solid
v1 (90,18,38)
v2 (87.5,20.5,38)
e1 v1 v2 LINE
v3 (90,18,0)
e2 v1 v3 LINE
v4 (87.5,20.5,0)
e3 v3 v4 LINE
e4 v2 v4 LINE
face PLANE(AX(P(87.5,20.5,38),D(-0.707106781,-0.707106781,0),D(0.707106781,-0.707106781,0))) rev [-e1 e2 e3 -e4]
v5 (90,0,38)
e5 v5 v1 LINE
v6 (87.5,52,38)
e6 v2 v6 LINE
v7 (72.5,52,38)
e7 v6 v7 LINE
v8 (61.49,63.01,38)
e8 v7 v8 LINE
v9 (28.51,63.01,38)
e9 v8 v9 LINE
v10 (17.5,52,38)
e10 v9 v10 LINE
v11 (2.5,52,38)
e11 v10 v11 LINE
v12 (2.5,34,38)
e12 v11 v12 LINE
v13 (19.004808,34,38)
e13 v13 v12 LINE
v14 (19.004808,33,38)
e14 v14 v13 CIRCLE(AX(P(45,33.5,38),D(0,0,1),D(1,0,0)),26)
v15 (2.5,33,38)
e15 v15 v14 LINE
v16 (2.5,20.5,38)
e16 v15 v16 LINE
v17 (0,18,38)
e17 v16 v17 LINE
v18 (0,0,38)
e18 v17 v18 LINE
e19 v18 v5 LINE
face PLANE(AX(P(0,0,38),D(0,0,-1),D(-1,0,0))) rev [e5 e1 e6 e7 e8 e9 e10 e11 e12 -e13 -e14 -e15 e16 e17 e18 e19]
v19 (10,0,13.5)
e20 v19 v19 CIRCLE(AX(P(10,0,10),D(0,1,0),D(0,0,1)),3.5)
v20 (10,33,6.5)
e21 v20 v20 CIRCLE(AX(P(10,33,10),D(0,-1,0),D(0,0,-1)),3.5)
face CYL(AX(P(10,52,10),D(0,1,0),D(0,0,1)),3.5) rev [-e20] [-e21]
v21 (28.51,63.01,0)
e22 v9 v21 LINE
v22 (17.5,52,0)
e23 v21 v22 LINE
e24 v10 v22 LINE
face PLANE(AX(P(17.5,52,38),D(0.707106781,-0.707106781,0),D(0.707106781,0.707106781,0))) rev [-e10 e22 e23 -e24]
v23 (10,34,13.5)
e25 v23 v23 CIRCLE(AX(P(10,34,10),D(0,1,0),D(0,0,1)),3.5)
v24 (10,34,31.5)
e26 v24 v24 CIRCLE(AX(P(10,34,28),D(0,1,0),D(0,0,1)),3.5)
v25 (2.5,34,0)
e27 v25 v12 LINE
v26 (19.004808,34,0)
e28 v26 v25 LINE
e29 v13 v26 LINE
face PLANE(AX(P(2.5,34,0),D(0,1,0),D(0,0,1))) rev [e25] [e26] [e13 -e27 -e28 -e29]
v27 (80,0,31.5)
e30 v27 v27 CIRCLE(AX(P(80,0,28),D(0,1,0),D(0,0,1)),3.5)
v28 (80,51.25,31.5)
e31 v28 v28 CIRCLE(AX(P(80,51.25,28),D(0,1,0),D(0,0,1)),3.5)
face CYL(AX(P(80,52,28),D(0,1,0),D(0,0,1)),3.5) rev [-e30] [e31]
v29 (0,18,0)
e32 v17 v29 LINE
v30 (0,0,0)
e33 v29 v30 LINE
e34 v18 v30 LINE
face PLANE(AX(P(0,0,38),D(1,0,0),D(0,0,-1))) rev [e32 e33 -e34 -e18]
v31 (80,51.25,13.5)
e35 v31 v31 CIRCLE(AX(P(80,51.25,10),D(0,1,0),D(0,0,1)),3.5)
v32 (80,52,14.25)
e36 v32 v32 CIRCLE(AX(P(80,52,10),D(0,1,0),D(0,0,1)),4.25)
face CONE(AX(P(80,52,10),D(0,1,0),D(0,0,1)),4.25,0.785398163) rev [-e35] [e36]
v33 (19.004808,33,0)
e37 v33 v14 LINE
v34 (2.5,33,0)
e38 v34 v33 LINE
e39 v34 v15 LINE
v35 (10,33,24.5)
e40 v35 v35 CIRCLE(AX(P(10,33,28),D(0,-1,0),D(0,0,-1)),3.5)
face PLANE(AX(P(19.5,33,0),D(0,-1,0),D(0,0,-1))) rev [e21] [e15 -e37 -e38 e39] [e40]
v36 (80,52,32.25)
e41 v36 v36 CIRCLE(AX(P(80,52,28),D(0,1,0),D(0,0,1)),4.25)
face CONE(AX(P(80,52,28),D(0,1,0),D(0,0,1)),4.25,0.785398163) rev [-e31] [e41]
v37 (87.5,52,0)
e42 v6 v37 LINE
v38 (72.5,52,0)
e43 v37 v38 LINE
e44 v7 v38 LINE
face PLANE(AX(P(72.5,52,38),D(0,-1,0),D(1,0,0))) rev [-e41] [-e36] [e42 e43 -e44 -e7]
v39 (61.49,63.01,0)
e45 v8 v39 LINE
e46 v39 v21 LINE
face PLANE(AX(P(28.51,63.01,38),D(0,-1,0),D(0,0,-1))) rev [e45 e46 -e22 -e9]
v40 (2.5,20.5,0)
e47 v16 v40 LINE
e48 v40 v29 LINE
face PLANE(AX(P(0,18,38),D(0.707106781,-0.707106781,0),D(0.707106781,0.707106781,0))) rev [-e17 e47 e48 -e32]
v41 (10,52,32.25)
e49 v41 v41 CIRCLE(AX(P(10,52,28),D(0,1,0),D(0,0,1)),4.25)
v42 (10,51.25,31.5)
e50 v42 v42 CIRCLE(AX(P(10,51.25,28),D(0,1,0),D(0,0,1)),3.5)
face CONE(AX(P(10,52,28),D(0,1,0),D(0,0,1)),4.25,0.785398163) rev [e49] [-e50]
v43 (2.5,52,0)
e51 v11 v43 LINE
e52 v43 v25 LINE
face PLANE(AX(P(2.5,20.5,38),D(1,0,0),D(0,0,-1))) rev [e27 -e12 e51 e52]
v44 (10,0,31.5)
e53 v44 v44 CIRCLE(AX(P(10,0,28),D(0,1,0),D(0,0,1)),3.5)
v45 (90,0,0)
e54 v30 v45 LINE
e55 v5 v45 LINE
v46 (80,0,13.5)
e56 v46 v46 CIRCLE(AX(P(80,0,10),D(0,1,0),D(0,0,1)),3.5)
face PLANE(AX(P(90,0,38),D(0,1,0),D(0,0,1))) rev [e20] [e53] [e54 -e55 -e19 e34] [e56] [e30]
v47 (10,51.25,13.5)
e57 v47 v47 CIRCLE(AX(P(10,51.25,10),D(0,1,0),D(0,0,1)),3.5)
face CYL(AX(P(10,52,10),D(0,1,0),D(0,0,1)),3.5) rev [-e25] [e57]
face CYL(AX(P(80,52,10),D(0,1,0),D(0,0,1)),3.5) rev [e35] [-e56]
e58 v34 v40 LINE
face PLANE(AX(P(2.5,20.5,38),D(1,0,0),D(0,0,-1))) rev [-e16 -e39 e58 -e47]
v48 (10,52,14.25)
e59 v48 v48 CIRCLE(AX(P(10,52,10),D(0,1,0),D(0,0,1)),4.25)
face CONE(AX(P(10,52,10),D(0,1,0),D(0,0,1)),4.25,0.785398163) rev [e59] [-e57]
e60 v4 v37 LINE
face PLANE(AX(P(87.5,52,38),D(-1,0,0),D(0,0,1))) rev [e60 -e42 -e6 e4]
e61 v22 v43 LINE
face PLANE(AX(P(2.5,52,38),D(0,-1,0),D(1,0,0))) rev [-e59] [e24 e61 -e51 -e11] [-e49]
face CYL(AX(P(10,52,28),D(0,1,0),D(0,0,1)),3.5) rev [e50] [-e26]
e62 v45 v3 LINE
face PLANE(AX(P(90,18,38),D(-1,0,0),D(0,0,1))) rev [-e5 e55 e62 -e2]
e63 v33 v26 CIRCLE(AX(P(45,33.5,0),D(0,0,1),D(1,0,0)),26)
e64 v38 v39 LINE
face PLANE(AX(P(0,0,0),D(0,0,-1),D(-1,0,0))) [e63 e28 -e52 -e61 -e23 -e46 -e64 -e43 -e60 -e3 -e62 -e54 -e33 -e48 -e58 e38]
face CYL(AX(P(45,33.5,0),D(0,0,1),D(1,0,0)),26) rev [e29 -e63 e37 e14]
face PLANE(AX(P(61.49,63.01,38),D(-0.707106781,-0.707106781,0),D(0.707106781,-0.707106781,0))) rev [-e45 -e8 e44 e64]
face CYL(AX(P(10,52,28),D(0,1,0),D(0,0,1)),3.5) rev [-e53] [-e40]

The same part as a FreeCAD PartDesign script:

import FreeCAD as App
import Part
import Sketcher
from FreeCAD import Vector

doc = App.newDocument("Part")
params = doc.addObject("Spreadsheet::Sheet", "Params")
for row, (alias, value) in enumerate([
    ("sketch1_width", "90 mm"),
    ("sketch1_width2", "15 mm"),
    ("sketch1_height", "18 mm"),
    ("sketch1_height2", "31.5 mm"),
    ("sketch1_width3", "32.98 mm"),
    ("pad1_length", "38 mm"),
    ("sketch2_diameter", "52 mm"),
    ("pocket1_length", "38 mm"),
    ("sketch3_width", "17 mm"),
    ("sketch3_height", "1 mm"),
    ("pocket2_length", "38 mm"),
    ("sketch4_diameter", "7 mm"),
    ("hole_diameter", "7 mm"),
    ("hole_csink_diameter", "8.5 mm"),
], start=1):
    params.set(f"A{row}", alias)
    params.set(f"B{row}", "=" + value)
    params.setAlias(f"B{row}", alias)

body = doc.addObject("PartDesign::Body", "Body")

sketch1 = body.newObject("Sketcher::SketchObject", "Sketch")
sketch1.AttachmentSupport = (doc.getObject("XY_Plane"), [""])
sketch1.MapMode = "FlatFace"
sketch1.addGeometry([
    Part.LineSegment(Vector(0, 18, 0), Vector(0, 0, 0)),
    Part.LineSegment(Vector(0, 0, 0), Vector(90, 0, 0)),
    Part.LineSegment(Vector(90, 0, 0), Vector(90, 18, 0)),
    Part.LineSegment(Vector(90, 18, 0), Vector(87.5, 20.5, 0)),
    Part.LineSegment(Vector(87.5, 20.5, 0), Vector(87.5, 52, 0)),
    Part.LineSegment(Vector(87.5, 52, 0), Vector(72.5, 52, 0)),
    Part.LineSegment(Vector(72.5, 52, 0), Vector(61.5, 63, 0)),
    Part.LineSegment(Vector(61.5, 63, 0), Vector(28.5, 63, 0)),
    Part.LineSegment(Vector(28.5, 63, 0), Vector(17.5, 52, 0)),
    Part.LineSegment(Vector(17.5, 52, 0), Vector(2.5, 52, 0)),
    Part.LineSegment(Vector(2.5, 52, 0), Vector(2.5, 20.5, 0)),
    Part.LineSegment(Vector(2.5, 20.5, 0), Vector(0, 18, 0)),
], False)
sketch1.addConstraint([
    Sketcher.Constraint("Coincident", 0, 2, 1, 1),
    Sketcher.Constraint("Coincident", 1, 2, 2, 1),
    Sketcher.Constraint("Coincident", 2, 2, 3, 1),
    Sketcher.Constraint("Coincident", 3, 2, 4, 1),
    Sketcher.Constraint("Coincident", 4, 2, 5, 1),
    Sketcher.Constraint("Coincident", 5, 2, 6, 1),
    Sketcher.Constraint("Coincident", 6, 2, 7, 1),
    Sketcher.Constraint("Coincident", 7, 2, 8, 1),
    Sketcher.Constraint("Coincident", 8, 2, 9, 1),
    Sketcher.Constraint("Coincident", 9, 2, 10, 1),
    Sketcher.Constraint("Coincident", 10, 2, 11, 1),
    Sketcher.Constraint("Coincident", 11, 2, 0, 1),
    Sketcher.Constraint("Vertical", 0),
    Sketcher.Constraint("Horizontal", 1),
    Sketcher.Constraint("Vertical", 2),
    Sketcher.Constraint("Vertical", 4),
    Sketcher.Constraint("Horizontal", 5),
    Sketcher.Constraint("Horizontal", 7),
    Sketcher.Constraint("Horizontal", 9),
    Sketcher.Constraint("Vertical", 10),
    Sketcher.Constraint("Coincident", 0, 2, -1, 1),
    Sketcher.Constraint("Parallel", 3, 6),
    Sketcher.Constraint("Perpendicular", 6, 8),
    Sketcher.Constraint("Parallel", 8, 11),
    Sketcher.Constraint("Horizontal", 5, 2, 8, 2),
    Sketcher.Constraint("Horizontal", 3, 2, 10, 2),
    Sketcher.Constraint("Horizontal", 2, 2, 11, 2),
    Sketcher.Constraint("Equal", 5, 9),
    Sketcher.Constraint("Equal", 6, 8),
    Sketcher.Constraint("DistanceX", 1, 1, 1, 2, 90.0),
    Sketcher.Constraint("DistanceX", 5, 2, 5, 1, 15.0),
    Sketcher.Constraint("DistanceY", 0, 2, 0, 1, 18.0),
    Sketcher.Constraint("DistanceY", 4, 1, 4, 2, 31.5),
    Sketcher.Constraint("DistanceY", -1, 1, 4, 2, 52.0),
    Sketcher.Constraint("DistanceX", 7, 2, 7, 1, 32.98),
])
sketch1.setExpression("Constraints[29]", "Params.sketch1_width")
sketch1.setExpression("Constraints[30]", "Params.sketch1_width2")
sketch1.setExpression("Constraints[31]", "Params.sketch1_height")
sketch1.setExpression("Constraints[32]", "Params.sketch1_height2")
sketch1.setExpression("Constraints[34]", "Params.sketch1_width3")
pad1 = body.newObject("PartDesign::Pad", "Pad")
pad1.Profile = sketch1
pad1.setExpression("Length", "Params.pad1_length")

sketch2 = body.newObject("Sketcher::SketchObject", "Sketch001")
sketch2.AttachmentSupport = (doc.getObject("XY_Plane"), [""])
sketch2.MapMode = "FlatFace"
sketch2.AttachmentOffset = App.Placement(Vector(0, 0, 38), App.Rotation())
sketch2.addGeometry(Part.Circle(Vector(45, 34, 0), Vector(0, 0, 1), 26), False)
sketch2.addConstraint([
    Sketcher.Constraint("Diameter", 0, 52.0),
    Sketcher.Constraint("DistanceX", -1, 1, 0, 3, 45.0),
    Sketcher.Constraint("DistanceY", -1, 1, 0, 3, 33.5),
])
sketch2.setExpression("Constraints[0]", "Params.sketch2_diameter")
pocket1 = body.newObject("PartDesign::Pocket", "Pocket")
pocket1.Profile = sketch2
pocket1.setExpression("Length", "Params.pocket1_length")

sketch3 = body.newObject("Sketcher::SketchObject", "Sketch002")
sketch3.AttachmentSupport = (doc.getObject("XY_Plane"), [""])
sketch3.MapMode = "FlatFace"
sketch3.AttachmentOffset = App.Placement(Vector(0, 0, 38), App.Rotation())
sketch3.addGeometry([
    Part.LineSegment(Vector(2.5, 34, 0), Vector(2.5, 33, 0)),
    Part.LineSegment(Vector(2.5, 33, 0), Vector(19.5, 33, 0)),
    Part.LineSegment(Vector(19.5, 33, 0), Vector(19.5, 34, 0)),
    Part.LineSegment(Vector(19.5, 34, 0), Vector(2.5, 34, 0)),
], False)
sketch3.addConstraint([
    Sketcher.Constraint("Coincident", 0, 2, 1, 1),
    Sketcher.Constraint("Coincident", 1, 2, 2, 1),
    Sketcher.Constraint("Coincident", 2, 2, 3, 1),
    Sketcher.Constraint("Coincident", 3, 2, 0, 1),
    Sketcher.Constraint("Vertical", 0),
    Sketcher.Constraint("Horizontal", 1),
    Sketcher.Constraint("Vertical", 2),
    Sketcher.Constraint("Horizontal", 3),
    Sketcher.Constraint("DistanceX", 1, 1, 1, 2, 17.0),
    Sketcher.Constraint("DistanceY", 0, 2, 0, 1, 1.0),
    Sketcher.Constraint("DistanceY", -1, 1, 0, 2, 33.0),
    Sketcher.Constraint("DistanceX", -1, 1, 0, 2, 2.5),
])
sketch3.setExpression("Constraints[8]", "Params.sketch3_width")
sketch3.setExpression("Constraints[9]", "Params.sketch3_height")
pocket2 = body.newObject("PartDesign::Pocket", "Pocket001")
pocket2.Profile = sketch3
pocket2.setExpression("Length", "Params.pocket2_length")

sketch4 = body.newObject("Sketcher::SketchObject", "Sketch003")
sketch4.AttachmentSupport = (doc.getObject("XZ_Plane"), [""])
sketch4.MapMode = "FlatFace"
sketch4.AttachmentOffset = App.Placement(Vector(0, 0, -52), App.Rotation())
sketch4.addGeometry([
    Part.Circle(Vector(10, 10, 0), Vector(0, 0, 1), 3.5),
    Part.Circle(Vector(10, 28, 0), Vector(0, 0, 1), 3.5),
    Part.Circle(Vector(80, 28, 0), Vector(0, 0, 1), 3.5),
    Part.Circle(Vector(80, 10, 0), Vector(0, 0, 1), 3.5),
], False)
sketch4.addConstraint([
    Sketcher.Constraint("Equal", 0, 1),
    Sketcher.Constraint("Equal", 1, 2),
    Sketcher.Constraint("Equal", 2, 3),
    Sketcher.Constraint("Horizontal", 1, 3, 2, 3),
    Sketcher.Constraint("Horizontal", 0, 3, 3, 3),
    Sketcher.Constraint("Vertical", 0, 3, 1, 3),
    Sketcher.Constraint("Vertical", 2, 3, 3, 3),
    Sketcher.Constraint("Diameter", 0, 7.0),
    Sketcher.Constraint("DistanceX", -1, 1, 0, 3, 10.0),
    Sketcher.Constraint("DistanceY", -1, 1, 0, 3, 10.0),
    Sketcher.Constraint("DistanceY", -1, 1, 1, 3, 28.0),
    Sketcher.Constraint("DistanceX", -1, 1, 2, 3, 80.0),
])
sketch4.setExpression("Constraints[7]", "Params.sketch4_diameter")
doc.recompute()
hole = body.newObject("PartDesign::Hole", "Hole")
hole.Profile = sketch4
hole.ThreadType = "None"
hole.setExpression("Diameter", "Params.hole_diameter")
hole.DepthType = "ThroughAll"
hole.HoleCutType = "Countersink"
hole.setExpression("HoleCutDiameter", "Params.hole_csink_diameter")
hole.HoleCutCountersinkAngle = 90
hole.Reversed = True

doc.recompute()
